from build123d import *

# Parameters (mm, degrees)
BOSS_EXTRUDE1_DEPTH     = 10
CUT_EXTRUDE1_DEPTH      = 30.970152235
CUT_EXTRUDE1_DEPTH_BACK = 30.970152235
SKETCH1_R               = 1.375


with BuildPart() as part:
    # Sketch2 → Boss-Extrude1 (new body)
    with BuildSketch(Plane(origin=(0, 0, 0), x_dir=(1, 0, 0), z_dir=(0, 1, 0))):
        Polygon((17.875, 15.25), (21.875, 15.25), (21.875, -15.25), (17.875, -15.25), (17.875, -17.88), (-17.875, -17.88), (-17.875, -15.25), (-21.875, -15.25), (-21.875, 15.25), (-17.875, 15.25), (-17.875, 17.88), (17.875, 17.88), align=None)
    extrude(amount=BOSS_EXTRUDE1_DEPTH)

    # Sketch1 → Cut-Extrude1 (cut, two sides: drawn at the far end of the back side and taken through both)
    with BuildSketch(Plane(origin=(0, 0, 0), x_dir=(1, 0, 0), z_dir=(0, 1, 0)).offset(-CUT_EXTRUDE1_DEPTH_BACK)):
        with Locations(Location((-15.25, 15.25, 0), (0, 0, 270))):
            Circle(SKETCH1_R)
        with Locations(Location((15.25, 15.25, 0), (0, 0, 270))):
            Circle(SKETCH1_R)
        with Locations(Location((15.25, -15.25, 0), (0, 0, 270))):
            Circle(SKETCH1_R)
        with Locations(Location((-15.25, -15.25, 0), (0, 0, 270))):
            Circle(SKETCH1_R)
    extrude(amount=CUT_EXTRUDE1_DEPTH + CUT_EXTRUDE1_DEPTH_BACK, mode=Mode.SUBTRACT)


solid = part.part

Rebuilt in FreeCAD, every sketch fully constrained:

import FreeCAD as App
import Part
import Sketcher
from FreeCAD import Vector


def add_polygon(sketch, points):
    """Adds a closed chain of lines whose ends are joined by coincident constraints."""
    first, n = sketch.GeometryCount, len(points)
    for a, b in zip(points, points[1:] + points[:1]):
        sketch.addGeometry(Part.LineSegment(App.Vector(*a, 0), App.Vector(*b, 0)), False)
    for i in range(n):
        sketch.addConstraint(Sketcher.Constraint("Coincident", first + i, 2, first + (i + 1) % n, 1))

doc = App.newDocument("Part")
body = doc.addObject("PartDesign::Body", "Body")

sketch1 = body.newObject("Sketcher::SketchObject", "Sketch")
sketch1.AttachmentSupport = (doc.getObject("XZ_Plane"), [""])
sketch1.MapMode = "FlatFace"
add_polygon(sketch1, [(21.875, -15.25), (17.875, -15.25), (17.875, -17.88), (-17.875, -17.88), (-17.875, -15.25), (-21.875, -15.25), (-21.875, 15.25), (-17.875, 15.25), (-17.875, 17.88), (17.875, 17.88), (17.875, 15.25), (21.875, 15.25)])
sketch1.addConstraint(Sketcher.Constraint("Horizontal", 0))
sketch1.addConstraint(Sketcher.Constraint("Vertical", 1))
sketch1.addConstraint(Sketcher.Constraint("Horizontal", 2))
sketch1.addConstraint(Sketcher.Constraint("Vertical", 3))
sketch1.addConstraint(Sketcher.Constraint("Horizontal", 4))
sketch1.addConstraint(Sketcher.Constraint("Vertical", 5))
sketch1.addConstraint(Sketcher.Constraint("Horizontal", 6))
sketch1.addConstraint(Sketcher.Constraint("Vertical", 7))
sketch1.addConstraint(Sketcher.Constraint("Horizontal", 8))
sketch1.addConstraint(Sketcher.Constraint("Vertical", 9))
sketch1.addConstraint(Sketcher.Constraint("Horizontal", 10))
sketch1.addConstraint(Sketcher.Constraint("Vertical", 11))
sketch1.addConstraint(Sketcher.Constraint("Symmetric", 0, 2, 6, 2, -1, 1))
sketch1.addConstraint(Sketcher.Constraint("Symmetric", 2, 2, 8, 2, -1, 1))
sketch1.addConstraint(Sketcher.Constraint("Symmetric", 4, 2, 10, 2, -1, 1))
sketch1.addConstraint(Sketcher.Constraint("Symmetric", 0, 2, 3, 2, -2))
sketch1.addConstraint(Sketcher.Constraint("DistanceX", 0, 2, 0, 1, 4.0))
sketch1.addConstraint(Sketcher.Constraint("DistanceY", 5, 1, 5, 2, 30.5))
sketch1.addConstraint(Sketcher.Constraint("DistanceX", 2, 2, 2, 1, 35.75))
sketch1.addConstraint(Sketcher.Constraint("DistanceY", 1, 2, 1, 1, 2.63))
pad1 = body.newObject("PartDesign::Pad", "Pad")
pad1.Profile = sketch1
pad1.Length = 10
pad1.Reversed = True

sketch2 = body.newObject("Sketcher::SketchObject", "Sketch001")
sketch2.AttachmentSupport = (doc.getObject("XZ_Plane"), [""])
sketch2.MapMode = "FlatFace"
sketch2.addGeometry(Part.Circle(Vector(-15.25, -15.25, 0), Vector(0, 0, 1), 1.375), False)
sketch2.addGeometry(Part.Circle(Vector(15.25, -15.25, 0), Vector(0, 0, 1), 1.375), False)
sketch2.addGeometry(Part.Circle(Vector(15.25, 15.25, 0), Vector(0, 0, 1), 1.375), False)
sketch2.addGeometry(Part.Circle(Vector(-15.25, 15.25, 0), Vector(0, 0, 1), 1.375), False)
sketch2.addConstraint(Sketcher.Constraint("Equal", 0, 1))
sketch2.addConstraint(Sketcher.Constraint("Equal", 1, 2))
sketch2.addConstraint(Sketcher.Constraint("Equal", 2, 3))
sketch2.addConstraint(Sketcher.Constraint("Symmetric", 0, 3, 2, 3, -1, 1))
sketch2.addConstraint(Sketcher.Constraint("Symmetric", 1, 3, 3, 3, -1, 1))
sketch2.addConstraint(Sketcher.Constraint("Symmetric", 0, 3, 1, 3, -2))
sketch2.addConstraint(Sketcher.Constraint("Diameter", 0, 2.75))
sketch2.addConstraint(Sketcher.Constraint("DistanceX", 0, 3, 1, 3, 30.5))
sketch2.addConstraint(Sketcher.Constraint("DistanceY", 1, 3, 2, 3, 30.5))
pocket1 = body.newObject("PartDesign::Pocket", "Pocket")
pocket1.Profile = sketch2
pocket1.Type = "ThroughAll"
pocket1.Midplane = True

doc.recompute()
